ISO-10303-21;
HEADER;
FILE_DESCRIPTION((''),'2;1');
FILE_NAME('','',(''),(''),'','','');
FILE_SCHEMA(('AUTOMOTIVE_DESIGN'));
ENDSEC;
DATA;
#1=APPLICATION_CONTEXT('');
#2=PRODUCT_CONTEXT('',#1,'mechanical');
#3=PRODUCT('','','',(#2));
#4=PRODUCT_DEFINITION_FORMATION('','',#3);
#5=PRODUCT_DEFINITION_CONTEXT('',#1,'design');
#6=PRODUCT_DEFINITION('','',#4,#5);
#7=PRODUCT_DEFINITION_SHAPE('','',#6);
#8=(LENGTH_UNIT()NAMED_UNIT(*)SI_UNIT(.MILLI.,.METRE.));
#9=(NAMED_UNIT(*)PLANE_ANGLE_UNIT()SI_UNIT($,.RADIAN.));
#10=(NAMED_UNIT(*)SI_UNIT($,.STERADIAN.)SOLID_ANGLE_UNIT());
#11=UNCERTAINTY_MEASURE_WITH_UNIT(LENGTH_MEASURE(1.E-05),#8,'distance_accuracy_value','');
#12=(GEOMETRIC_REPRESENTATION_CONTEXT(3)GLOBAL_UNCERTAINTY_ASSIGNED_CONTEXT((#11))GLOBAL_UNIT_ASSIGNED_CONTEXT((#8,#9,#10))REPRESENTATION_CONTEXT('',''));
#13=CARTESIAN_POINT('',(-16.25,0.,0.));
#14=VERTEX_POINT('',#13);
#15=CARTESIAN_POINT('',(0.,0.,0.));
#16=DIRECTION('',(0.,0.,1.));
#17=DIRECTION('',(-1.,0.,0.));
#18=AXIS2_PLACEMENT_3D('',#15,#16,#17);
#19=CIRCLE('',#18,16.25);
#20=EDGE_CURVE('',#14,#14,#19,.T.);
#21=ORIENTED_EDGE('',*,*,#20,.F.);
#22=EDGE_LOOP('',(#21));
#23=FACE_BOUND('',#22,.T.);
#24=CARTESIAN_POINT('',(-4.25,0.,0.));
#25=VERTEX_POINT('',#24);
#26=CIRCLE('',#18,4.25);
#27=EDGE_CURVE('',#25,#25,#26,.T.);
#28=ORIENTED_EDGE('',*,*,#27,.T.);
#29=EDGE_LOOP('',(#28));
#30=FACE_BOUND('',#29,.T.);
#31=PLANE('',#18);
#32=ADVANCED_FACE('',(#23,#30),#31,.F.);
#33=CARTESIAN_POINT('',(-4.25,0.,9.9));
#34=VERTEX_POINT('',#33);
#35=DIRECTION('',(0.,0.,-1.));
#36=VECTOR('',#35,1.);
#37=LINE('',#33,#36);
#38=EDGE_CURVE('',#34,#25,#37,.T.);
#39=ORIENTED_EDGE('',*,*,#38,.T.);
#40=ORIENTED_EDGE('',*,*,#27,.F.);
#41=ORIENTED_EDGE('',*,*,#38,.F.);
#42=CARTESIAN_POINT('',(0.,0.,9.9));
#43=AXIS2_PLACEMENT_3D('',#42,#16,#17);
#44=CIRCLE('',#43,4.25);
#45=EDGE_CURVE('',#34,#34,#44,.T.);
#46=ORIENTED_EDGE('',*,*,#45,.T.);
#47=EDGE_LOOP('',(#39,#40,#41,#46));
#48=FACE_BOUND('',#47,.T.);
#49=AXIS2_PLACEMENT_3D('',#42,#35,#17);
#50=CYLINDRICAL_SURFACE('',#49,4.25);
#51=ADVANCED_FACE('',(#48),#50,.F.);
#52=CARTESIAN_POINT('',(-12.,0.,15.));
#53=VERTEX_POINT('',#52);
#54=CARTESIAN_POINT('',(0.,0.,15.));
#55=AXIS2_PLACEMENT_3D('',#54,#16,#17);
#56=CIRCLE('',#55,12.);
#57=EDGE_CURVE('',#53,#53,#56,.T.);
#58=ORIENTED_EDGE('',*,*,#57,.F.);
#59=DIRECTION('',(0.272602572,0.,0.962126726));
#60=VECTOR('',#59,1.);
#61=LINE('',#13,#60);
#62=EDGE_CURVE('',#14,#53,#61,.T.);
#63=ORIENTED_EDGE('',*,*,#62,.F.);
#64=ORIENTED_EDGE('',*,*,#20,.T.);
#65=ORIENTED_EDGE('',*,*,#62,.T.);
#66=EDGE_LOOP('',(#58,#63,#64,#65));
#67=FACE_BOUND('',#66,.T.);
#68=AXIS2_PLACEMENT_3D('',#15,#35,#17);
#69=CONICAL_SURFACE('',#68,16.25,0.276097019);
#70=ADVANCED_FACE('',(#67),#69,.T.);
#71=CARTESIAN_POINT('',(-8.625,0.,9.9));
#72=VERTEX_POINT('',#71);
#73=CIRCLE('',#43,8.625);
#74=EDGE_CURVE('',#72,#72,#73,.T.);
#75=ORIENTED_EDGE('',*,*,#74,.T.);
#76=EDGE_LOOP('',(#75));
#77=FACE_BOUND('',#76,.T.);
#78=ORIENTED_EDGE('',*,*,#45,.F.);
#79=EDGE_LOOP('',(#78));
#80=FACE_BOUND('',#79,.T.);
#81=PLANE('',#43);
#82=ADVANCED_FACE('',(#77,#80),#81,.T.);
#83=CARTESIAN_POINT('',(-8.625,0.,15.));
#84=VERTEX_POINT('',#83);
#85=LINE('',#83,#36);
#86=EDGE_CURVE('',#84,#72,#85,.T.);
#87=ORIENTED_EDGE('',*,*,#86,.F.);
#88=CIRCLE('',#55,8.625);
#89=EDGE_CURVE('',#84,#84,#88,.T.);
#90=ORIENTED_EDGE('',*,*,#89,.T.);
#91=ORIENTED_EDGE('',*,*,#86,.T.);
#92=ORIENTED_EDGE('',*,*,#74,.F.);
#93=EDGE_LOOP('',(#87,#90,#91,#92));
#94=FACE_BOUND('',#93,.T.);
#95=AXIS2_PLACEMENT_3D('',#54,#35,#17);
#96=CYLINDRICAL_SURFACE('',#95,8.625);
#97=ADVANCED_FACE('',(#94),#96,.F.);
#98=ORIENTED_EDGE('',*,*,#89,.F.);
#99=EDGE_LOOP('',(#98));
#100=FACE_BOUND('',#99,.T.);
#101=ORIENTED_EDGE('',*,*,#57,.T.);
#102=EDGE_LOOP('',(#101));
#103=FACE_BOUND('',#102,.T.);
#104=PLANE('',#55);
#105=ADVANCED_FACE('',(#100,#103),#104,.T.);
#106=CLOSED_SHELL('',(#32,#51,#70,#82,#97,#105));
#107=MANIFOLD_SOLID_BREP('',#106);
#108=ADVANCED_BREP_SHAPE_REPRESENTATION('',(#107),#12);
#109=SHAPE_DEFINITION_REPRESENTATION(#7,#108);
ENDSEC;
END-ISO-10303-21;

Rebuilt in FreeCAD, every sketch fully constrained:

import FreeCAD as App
import Part
import Sketcher
from FreeCAD import Vector


def add_polygon(sketch, points):
    """Adds a closed chain of lines whose ends are joined by coincident constraints."""
    first, n = sketch.GeometryCount, len(points)
    for a, b in zip(points, points[1:] + points[:1]):
        sketch.addGeometry(Part.LineSegment(App.Vector(*a, 0), App.Vector(*b, 0)), False)
    for i in range(n):
        sketch.addConstraint(Sketcher.Constraint("Coincident", first + i, 2, first + (i + 1) % n, 1))

doc = App.newDocument("Part")
body = doc.addObject("PartDesign::Body", "Body")

sketch1 = doc.addObject("Sketcher::SketchObject", "Sketch")
body.addObject(sketch1)
sketch1.AttachmentSupport = (doc.XZ_Plane, [""])
sketch1.MapMode = "FlatFace"
add_polygon(sketch1, [(-4.2, 9.9), (-8.6, 9.9), (-8.6, 15), (-12, 15), (-16.2, 0), (-4.2, 0)])
sketch1.addConstraint(Sketcher.Constraint("Horizontal", 0))
sketch1.addConstraint(Sketcher.Constraint("Vertical", 1))
sketch1.addConstraint(Sketcher.Constraint("Horizontal", 2))
sketch1.addConstraint(Sketcher.Constraint("Horizontal", 4))
sketch1.addConstraint(Sketcher.Constraint("Vertical", 5))
sketch1.addConstraint(Sketcher.Constraint("PointOnObject", 3, 2, -1))
sketch1.addConstraint(Sketcher.Constraint("DistanceX", 4, 1, 4, 2, 12.0))
sketch1.addConstraint(Sketcher.Constraint("DistanceY", 1, 1, 1, 2, 5.1))
sketch1.addConstraint(Sketcher.Constraint("DistanceY", 5, 1, 5, 2, 9.9))
sketch1.addConstraint(Sketcher.Constraint("DistanceX", 2, 2, -1, 1, 12.0))
sketch1.addConstraint(Sketcher.Constraint("DistanceX", 0, 2, 0, 1, 4.375))
sketch1.addConstraint(Sketcher.Constraint("DistanceX", 2, 2, 2, 1, 3.375))
revolution = doc.addObject("PartDesign::Revolution", "Revolution")
body.addObject(revolution)
revolution.Profile = sketch1
revolution.ReferenceAxis = (sketch1, ["V_Axis"])
revolution.Angle = 360

doc.recompute()
